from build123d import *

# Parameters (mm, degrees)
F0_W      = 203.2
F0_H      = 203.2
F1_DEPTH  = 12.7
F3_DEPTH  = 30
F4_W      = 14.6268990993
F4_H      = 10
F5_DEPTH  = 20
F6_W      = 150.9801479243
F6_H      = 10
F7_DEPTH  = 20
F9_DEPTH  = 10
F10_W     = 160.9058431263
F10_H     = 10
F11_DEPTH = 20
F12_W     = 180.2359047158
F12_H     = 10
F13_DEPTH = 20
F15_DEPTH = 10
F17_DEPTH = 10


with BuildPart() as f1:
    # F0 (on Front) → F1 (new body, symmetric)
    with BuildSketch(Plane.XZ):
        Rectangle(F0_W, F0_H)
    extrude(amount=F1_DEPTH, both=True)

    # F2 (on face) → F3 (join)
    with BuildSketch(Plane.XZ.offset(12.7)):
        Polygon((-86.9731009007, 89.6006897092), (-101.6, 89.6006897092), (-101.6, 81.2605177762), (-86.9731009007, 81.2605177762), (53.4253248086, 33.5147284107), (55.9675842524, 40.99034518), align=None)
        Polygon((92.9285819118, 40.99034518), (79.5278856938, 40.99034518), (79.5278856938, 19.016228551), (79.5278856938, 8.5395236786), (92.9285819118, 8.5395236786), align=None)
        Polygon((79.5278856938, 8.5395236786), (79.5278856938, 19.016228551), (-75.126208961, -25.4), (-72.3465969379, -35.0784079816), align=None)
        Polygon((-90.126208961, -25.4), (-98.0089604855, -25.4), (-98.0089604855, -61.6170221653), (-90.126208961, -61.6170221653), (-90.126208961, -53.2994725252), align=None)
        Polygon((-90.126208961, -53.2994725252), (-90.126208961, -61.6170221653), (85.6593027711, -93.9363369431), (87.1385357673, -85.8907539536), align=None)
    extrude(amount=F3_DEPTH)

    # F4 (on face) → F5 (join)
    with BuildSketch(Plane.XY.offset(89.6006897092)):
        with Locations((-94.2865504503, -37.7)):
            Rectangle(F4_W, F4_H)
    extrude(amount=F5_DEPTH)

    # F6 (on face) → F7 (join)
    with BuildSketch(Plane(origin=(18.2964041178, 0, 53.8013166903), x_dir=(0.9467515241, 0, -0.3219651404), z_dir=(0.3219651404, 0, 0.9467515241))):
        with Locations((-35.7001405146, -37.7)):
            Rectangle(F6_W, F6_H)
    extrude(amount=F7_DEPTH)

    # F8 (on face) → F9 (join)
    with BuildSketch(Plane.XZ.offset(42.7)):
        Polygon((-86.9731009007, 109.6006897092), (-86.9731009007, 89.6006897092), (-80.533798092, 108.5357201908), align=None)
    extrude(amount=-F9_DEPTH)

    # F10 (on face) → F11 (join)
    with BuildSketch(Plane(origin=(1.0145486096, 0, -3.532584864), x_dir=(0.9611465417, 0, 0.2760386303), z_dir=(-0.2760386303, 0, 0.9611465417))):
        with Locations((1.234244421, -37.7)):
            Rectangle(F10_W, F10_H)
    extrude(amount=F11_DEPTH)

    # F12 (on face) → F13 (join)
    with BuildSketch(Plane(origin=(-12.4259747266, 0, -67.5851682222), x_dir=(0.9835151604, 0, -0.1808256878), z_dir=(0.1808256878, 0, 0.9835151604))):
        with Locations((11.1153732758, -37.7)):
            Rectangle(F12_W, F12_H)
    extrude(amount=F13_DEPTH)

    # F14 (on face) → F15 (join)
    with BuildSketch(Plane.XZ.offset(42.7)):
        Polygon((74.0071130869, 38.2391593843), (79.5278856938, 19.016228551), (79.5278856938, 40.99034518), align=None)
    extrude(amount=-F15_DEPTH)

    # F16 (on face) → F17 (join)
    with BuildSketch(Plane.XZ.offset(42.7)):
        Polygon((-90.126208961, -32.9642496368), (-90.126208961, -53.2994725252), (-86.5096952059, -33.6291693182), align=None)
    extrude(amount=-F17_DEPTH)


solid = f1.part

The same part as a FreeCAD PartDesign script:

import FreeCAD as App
import Part
import Sketcher

V = App.Vector

doc = App.newDocument("Part")
body = doc.addObject("PartDesign::Body", "Body")

# Sketch on XZ plane
sketch1 = body.newObject("Sketcher::SketchObject", "Sketch")
sketch1.AttachmentSupport = (doc.getObject("XZ_Plane"), [""])
sketch1.MapMode = "FlatFace"
sketch1.addGeometry([
    Part.LineSegment(V(-102, 102, 0), V(-102, -102, 0)),
    Part.LineSegment(V(-102, -102, 0), V(102, -102, 0)),
    Part.LineSegment(V(102, -102, 0), V(102, 102, 0)),
    Part.LineSegment(V(102, 102, 0), V(-102, 102, 0)),
], False)
sketch1.addConstraint([
    Sketcher.Constraint("Coincident", 0, 2, 1, 1),
    Sketcher.Constraint("Coincident", 1, 2, 2, 1),
    Sketcher.Constraint("Coincident", 2, 2, 3, 1),
    Sketcher.Constraint("Coincident", 3, 2, 0, 1),
    Sketcher.Constraint("Vertical", 0),
    Sketcher.Constraint("Horizontal", 1),
    Sketcher.Constraint("Vertical", 2),
    Sketcher.Constraint("Horizontal", 3),
    Sketcher.Constraint("Symmetric", 0, 2, 2, 2, -1, 1),
    Sketcher.Constraint("Equal", 3, 0),
    Sketcher.Constraint("DistanceX", 1, 1, 1, 2, 203.2),
])
pad1 = body.newObject("PartDesign::Pad", "Pad")
pad1.Profile = sketch1
pad1.Length = 25.4
pad1.Midplane = True

# Sketch on XZ plane
sketch2 = body.newObject("Sketcher::SketchObject", "Sketch001")
sketch2.AttachmentSupport = (doc.getObject("XZ_Plane"), [""])
sketch2.MapMode = "FlatFace"
sketch2.AttachmentOffset = App.Placement(V(0, 0, 12.7), App.Rotation())
sketch2.addGeometry([
    Part.LineSegment(V(-86.973101, 89.60069, 0), V(-101.6, 89.60069, 0)),  # 0
    Part.LineSegment(V(-101.6, 89.60069, 0), V(-101.6, 81.260518, 0)),  # 1
    Part.LineSegment(V(-101.6, 81.260518, 0), V(-86.973101, 81.260518, 0)),  # 2
    Part.LineSegment(V(-86.973101, 81.260518, 0), V(53.425325, 33.514728, 0)),  # 3
    Part.LineSegment(V(53.425325, 33.514728, 0), V(55.967584, 40.990345, 0)),  # 4
    Part.LineSegment(V(55.967584, 40.990345, 0), V(-86.973101, 89.60069, 0)),  # 5
    Part.LineSegment(V(92.928582, 40.990345, 0), V(79.527886, 40.990345, 0)),  # 6
    Part.LineSegment(V(79.527886, 40.990345, 0), V(79.527886, 19.016229, 0)),  # 7
    Part.LineSegment(V(79.527886, 19.016229, 0), V(-75.126209, -25.4, 0)),  # 8
    Part.LineSegment(V(-75.126209, -25.4, 0), V(-72.346597, -35.078408, 0)),  # 9
    Part.LineSegment(V(-72.346597, -35.078408, 0), V(79.527886, 8.539524, 0)),  # 10
    Part.LineSegment(V(79.527886, 8.539524, 0), V(92.928582, 8.539524, 0)),  # 11
    Part.LineSegment(V(92.928582, 8.539524, 0), V(92.928582, 40.990345, 0)),  # 12
    Part.LineSegment(V(-90.126209, -25.4, 0), V(-98.00896, -25.4, 0)),  # 13
    Part.LineSegment(V(-98.00896, -25.4, 0), V(-98.00896, -61.617022, 0)),  # 14
    Part.LineSegment(V(-98.00896, -61.617022, 0), V(-90.126209, -61.617022, 0)),  # 15
    Part.LineSegment(V(-90.126209, -61.617022, 0), V(85.659303, -93.936337, 0)),  # 16
    Part.LineSegment(V(85.659303, -93.936337, 0), V(87.138536, -85.890754, 0)),  # 17
    Part.LineSegment(V(87.138536, -85.890754, 0), V(-90.126209, -53.299473, 0)),  # 18
    Part.LineSegment(V(-90.126209, -53.299473, 0), V(-90.126209, -25.4, 0)),  # 19
], False)
sketch2.addConstraint([
    Sketcher.Constraint("Coincident", 0, 2, 1, 1),
    Sketcher.Constraint("Coincident", 1, 2, 2, 1),
    Sketcher.Constraint("Coincident", 2, 2, 3, 1),
    Sketcher.Constraint("Coincident", 3, 2, 4, 1),
    Sketcher.Constraint("Coincident", 4, 2, 5, 1),
    Sketcher.Constraint("Coincident", 5, 2, 0, 1),
    Sketcher.Constraint("Coincident", 6, 2, 7, 1),
    Sketcher.Constraint("Coincident", 7, 2, 8, 1),
    Sketcher.Constraint("Coincident", 8, 2, 9, 1),
    Sketcher.Constraint("Coincident", 9, 2, 10, 1),
    Sketcher.Constraint("Coincident", 10, 2, 11, 1),
    Sketcher.Constraint("Coincident", 11, 2, 12, 1),
    Sketcher.Constraint("Coincident", 12, 2, 6, 1),
    Sketcher.Constraint("Coincident", 13, 2, 14, 1),
    Sketcher.Constraint("Coincident", 14, 2, 15, 1),
    Sketcher.Constraint("Coincident", 15, 2, 16, 1),
    Sketcher.Constraint("Coincident", 16, 2, 17, 1),
    Sketcher.Constraint("Coincident", 17, 2, 18, 1),
    Sketcher.Constraint("Coincident", 18, 2, 19, 1),
    Sketcher.Constraint("Coincident", 19, 2, 13, 1),
    Sketcher.Constraint("Horizontal", 0),
    Sketcher.Constraint("Vertical", 1),
    Sketcher.Constraint("Horizontal", 2),
    Sketcher.Constraint("Horizontal", 6),
    Sketcher.Constraint("Vertical", 7),
    Sketcher.Constraint("Horizontal", 11),
    Sketcher.Constraint("Vertical", 12),
    Sketcher.Constraint("Horizontal", 13),
    Sketcher.Constraint("Vertical", 14),
    Sketcher.Constraint("Horizontal", 15),
    Sketcher.Constraint("Vertical", 19),
    Sketcher.Constraint("DistanceX", 15, 2, 8, 2, 15.0),
    Sketcher.Constraint("DistanceX", 18, 2, 8, 2, 15.0),
    Sketcher.Constraint("DistanceX", 0, 2, -1, 1, 101.6),
    Sketcher.Constraint("DistanceY", 8, 2, -1, 1, 25.4),
    Sketcher.Constraint("DistanceY", 13, 2, -1, 1, 25.4),
    Sketcher.Constraint("DistanceX", 0, 2, 0, 1, 14.626899),
    Sketcher.Constraint("DistanceX", 2, 1, 2, 2, 14.626899),
    Sketcher.Constraint("DistanceX", 13, 2, 13, 1, 7.882752),
    Sketcher.Constraint("DistanceY", 1, 2, 1, 1, 8.340172),
    Sketcher.Constraint("DistanceY", 12, 1, 12, 2, 32.450822),
    Sketcher.Constraint("DistanceX", 4, 2, 6, 2, 23.560301),
    Sketcher.Constraint("DistanceY", 7, 2, 3, 2, 14.4985),
    Sketcher.Constraint("DistanceX", 4, 2, 10, 2, 23.560301),
    Sketcher.Constraint("Distance", 4, 7.89607),
    Sketcher.Constraint("Distance", 9, 10.069649),
    Sketcher.Constraint("Distance", 16, 178.731878),
    Sketcher.Constraint("DistanceX", 6, 2, 6, 1, 13.400696),
    Sketcher.Constraint("DistanceY", 7, 2, 7, 1, 21.974117),
    Sketcher.Constraint("DistanceY", 14, 2, 14, 1, 36.217022),
    Sketcher.Constraint("DistanceY", 19, 1, 19, 2, 27.899473),
    Sketcher.Constraint("DistanceY", -1, 1, 0, 2, 89.60069),
    Sketcher.Constraint("DistanceY", -1, 1, 3, 2, 33.514728),
    Sketcher.Constraint("DistanceX", 8, 2, -1, 1, 75.126209),
    Sketcher.Constraint("DistanceX", -1, 1, 11, 2, 92.928582),
    Sketcher.Constraint("DistanceX", 3, 2, 4, 2, 2.542259),
    Sketcher.Constraint("DistanceY", 9, 2, 10, 2, 43.617932),
    Sketcher.Constraint("DistanceY", 16, 2, 10, 2, 102.475861),
    Sketcher.Constraint("DistanceX", 10, 2, 17, 2, 7.61065),
    Sketcher.Constraint("Distance", 17, 8.180436),
])
pad2 = body.newObject("PartDesign::Pad", "Pad001")
pad2.Profile = sketch2
pad2.Length = 30

# Sketch on XY plane
sketch3 = body.newObject("Sketcher::SketchObject", "Sketch002")
sketch3.AttachmentSupport = (doc.getObject("XY_Plane"), [""])
sketch3.MapMode = "FlatFace"
sketch3.AttachmentOffset = App.Placement(V(0, 0, 89.60069), App.Rotation())
sketch3.addGeometry([
    Part.LineSegment(V(-102, -33, 0), V(-102, -43, 0)),
    Part.LineSegment(V(-102, -43, 0), V(-87, -43, 0)),
    Part.LineSegment(V(-87, -43, 0), V(-87, -33, 0)),
    Part.LineSegment(V(-87, -33, 0), V(-102, -33, 0)),
], False)
sketch3.addConstraint([
    Sketcher.Constraint("Coincident", 0, 2, 1, 1),
    Sketcher.Constraint("Coincident", 1, 2, 2, 1),
    Sketcher.Constraint("Coincident", 2, 2, 3, 1),
    Sketcher.Constraint("Coincident", 3, 2, 0, 1),
    Sketcher.Constraint("Vertical", 0),
    Sketcher.Constraint("Horizontal", 1),
    Sketcher.Constraint("Vertical", 2),
    Sketcher.Constraint("Horizontal", 3),
    Sketcher.Constraint("DistanceY", 0, 2, 0, 1, 10.0),
    Sketcher.Constraint("DistanceX", 0, 2, -1, 1, 101.6),
    Sketcher.Constraint("DistanceY", 0, 2, -1, 1, 42.7),
    Sketcher.Constraint("DistanceX", 1, 1, 1, 2, 14.626899),
])
pad3 = body.newObject("PartDesign::Pad", "Pad002")
pad3.Profile = sketch3
pad3.Length = 20

# Sketch on an angled plane
sketch4 = body.newObject("Sketcher::SketchObject", "Sketch003")
sketch4.Placement = App.Placement(V(18.296404, 0, 53.801317), App.Rotation(V(0.946751524, 0, -0.32196514), V(0, 1, 0), V(0.32196514, 0, 0.946751524), "ZXY"))
sketch4.addGeometry([
    Part.LineSegment(V(-111, -33, 0), V(-111, -43, 0)),
    Part.LineSegment(V(-111, -43, 0), V(40, -43, 0)),
    Part.LineSegment(V(40, -43, 0), V(40, -33, 0)),
    Part.LineSegment(V(40, -33, 0), V(-111, -33, 0)),
], False)
sketch4.addConstraint([
    Sketcher.Constraint("Coincident", 0, 2, 1, 1),
    Sketcher.Constraint("Coincident", 1, 2, 2, 1),
    Sketcher.Constraint("Coincident", 2, 2, 3, 1),
    Sketcher.Constraint("Coincident", 3, 2, 0, 1),
    Sketcher.Constraint("Vertical", 0),
    Sketcher.Constraint("Horizontal", 1),
    Sketcher.Constraint("Vertical", 2),
    Sketcher.Constraint("Horizontal", 3),
    Sketcher.Constraint("DistanceY", 0, 2, 0, 1, 10.0),
    Sketcher.Constraint("DistanceY", 0, 2, -1, 1, 42.7),
    Sketcher.Constraint("DistanceX", 1, 1, 1, 2, 150.980148),
    Sketcher.Constraint("DistanceX", 0, 2, -1, 1, 111.190214),
])
pad4 = body.newObject("PartDesign::Pad", "Pad003")
pad4.Profile = sketch4
pad4.Length = 20

# Sketch on XZ plane
sketch5 = body.newObject("Sketcher::SketchObject", "Sketch004")
sketch5.AttachmentSupport = (doc.getObject("XZ_Plane"), [""])
sketch5.MapMode = "FlatFace"
sketch5.AttachmentOffset = App.Placement(V(0, 0, 42.7), App.Rotation())
sketch5.addGeometry([
    Part.LineSegment(V(-87, 110, 0), V(-87, 90, 0)),
    Part.LineSegment(V(-87, 90, 0), V(-81, 109, 0)),
    Part.LineSegment(V(-81, 109, 0), V(-87, 110, 0)),
], False)
sketch5.addConstraint([
    Sketcher.Constraint("Coincident", 0, 2, 1, 1),
    Sketcher.Constraint("Coincident", 1, 2, 2, 1),
    Sketcher.Constraint("Coincident", 2, 2, 0, 1),
    Sketcher.Constraint("Vertical", 0),
    Sketcher.Constraint("DistanceY", 0, 2, 0, 1, 20.0),
    Sketcher.Constraint("Distance", 1, 20.0),
    Sketcher.Constraint("DistanceX", 0, 2, -1, 1, 86.973101),
    Sketcher.Constraint("DistanceX", 1, 2, -1, 1, 80.533798),
    Sketcher.Constraint("DistanceY", -1, 1, 0, 2, 89.60069),
])
pad5 = body.newObject("PartDesign::Pad", "Pad004")
pad5.Profile = sketch5
pad5.Length = 10
pad5.Reversed = True

# Sketch on an angled plane
sketch6 = body.newObject("Sketcher::SketchObject", "Sketch005")
sketch6.Placement = App.Placement(V(1.014549, 0, -3.532585), App.Rotation(V(0.961146542, 0, 0.27603863), V(0, 1, 0), V(-0.27603863, 0, 0.961146542), "ZXY"))
sketch6.addGeometry([
    Part.LineSegment(V(-79, -33, 0), V(-79, -43, 0)),
    Part.LineSegment(V(-79, -43, 0), V(82, -43, 0)),
    Part.LineSegment(V(82, -43, 0), V(82, -33, 0)),
    Part.LineSegment(V(82, -33, 0), V(-79, -33, 0)),
], False)
sketch6.addConstraint([
    Sketcher.Constraint("Coincident", 0, 2, 1, 1),
    Sketcher.Constraint("Coincident", 1, 2, 2, 1),
    Sketcher.Constraint("Coincident", 2, 2, 3, 1),
    Sketcher.Constraint("Coincident", 3, 2, 0, 1),
    Sketcher.Constraint("Vertical", 0),
    Sketcher.Constraint("Horizontal", 1),
    Sketcher.Constraint("Vertical", 2),
    Sketcher.Constraint("Horizontal", 3),
    Sketcher.Constraint("DistanceY", 0, 2, 0, 1, 10.0),
    Sketcher.Constraint("DistanceY", 0, 2, -1, 1, 42.7),
    Sketcher.Constraint("DistanceX", 1, 1, 1, 2, 160.905843),
    Sketcher.Constraint("DistanceX", 0, 2, -1, 1, 79.218677),
])
pad6 = body.newObject("PartDesign::Pad", "Pad005")
pad6.Profile = sketch6
pad6.Length = 20

# Sketch on an angled plane
sketch7 = body.newObject("Sketcher::SketchObject", "Sketch006")
sketch7.Placement = App.Placement(V(-12.425975, 0, -67.585168), App.Rotation(V(0.98351516, 0, -0.180825688), V(0, 0.999999999, 0), V(0.180825688, 0, 0.98351516), "ZXY"))
sketch7.addGeometry([
    Part.LineSegment(V(-79, -33, 0), V(-79, -43, 0)),
    Part.LineSegment(V(-79, -43, 0), V(101, -43, 0)),
    Part.LineSegment(V(101, -43, 0), V(101, -33, 0)),
    Part.LineSegment(V(101, -33, 0), V(-79, -33, 0)),
], False)
sketch7.addConstraint([
    Sketcher.Constraint("Coincident", 0, 2, 1, 1),
    Sketcher.Constraint("Coincident", 1, 2, 2, 1),
    Sketcher.Constraint("Coincident", 2, 2, 3, 1),
    Sketcher.Constraint("Coincident", 3, 2, 0, 1),
    Sketcher.Constraint("Vertical", 0),
    Sketcher.Constraint("Horizontal", 1),
    Sketcher.Constraint("Vertical", 2),
    Sketcher.Constraint("Horizontal", 3),
    Sketcher.Constraint("DistanceY", 0, 2, 0, 1, 10.0),
    Sketcher.Constraint("DistanceY", 0, 2, -1, 1, 42.7),
    Sketcher.Constraint("DistanceX", 1, 1, 1, 2, 180.235905),
    Sketcher.Constraint("DistanceX", 0, 2, -1, 1, 79.002579),
])
pad7 = body.newObject("PartDesign::Pad", "Pad006")
pad7.Profile = sketch7
pad7.Length = 20

# Sketch on XZ plane
sketch8 = body.newObject("Sketcher::SketchObject", "Sketch007")
sketch8.AttachmentSupport = (doc.getObject("XZ_Plane"), [""])
sketch8.MapMode = "FlatFace"
sketch8.AttachmentOffset = App.Placement(V(0, 0, 42.7), App.Rotation())
sketch8.addGeometry([
    Part.LineSegment(V(74, 38, 0), V(80, 19, 0)),
    Part.LineSegment(V(80, 19, 0), V(80, 41, 0)),
    Part.LineSegment(V(80, 41, 0), V(74, 38, 0)),
], False)
sketch8.addConstraint([
    Sketcher.Constraint("Coincident", 0, 2, 1, 1),
    Sketcher.Constraint("Coincident", 1, 2, 2, 1),
    Sketcher.Constraint("Coincident", 2, 2, 0, 1),
    Sketcher.Constraint("Vertical", 1),
    Sketcher.Constraint("Distance", 0, 20.0),
    Sketcher.Constraint("DistanceY", 1, 1, 1, 2, 21.974117),
    Sketcher.Constraint("DistanceY", -1, 1, 0, 2, 19.016229),
    Sketcher.Constraint("DistanceY", -1, 1, 2, 2, 38.239159),
    Sketcher.Constraint("DistanceX", -1, 1, 0, 2, 79.527886),
])
pad8 = body.newObject("PartDesign::Pad", "Pad007")
pad8.Profile = sketch8
pad8.Length = 10
pad8.Reversed = True

# Sketch on XZ plane
sketch9 = body.newObject("Sketcher::SketchObject", "Sketch008")
sketch9.AttachmentSupport = (doc.getObject("XZ_Plane"), [""])
sketch9.MapMode = "FlatFace"
sketch9.AttachmentOffset = App.Placement(V(0, 0, 42.7), App.Rotation())
sketch9.addGeometry([
    Part.LineSegment(V(-90.1, -33, 0), V(-90.1, -53.3, 0)),
    Part.LineSegment(V(-90.1, -53.3, 0), V(-86.5, -33.6, 0)),
    Part.LineSegment(V(-86.5, -33.6, 0), V(-90.1, -33, 0)),
], False)
sketch9.addConstraint([
    Sketcher.Constraint("Coincident", 0, 2, 1, 1),
    Sketcher.Constraint("Coincident", 1, 2, 2, 1),
    Sketcher.Constraint("Coincident", 2, 2, 0, 1),
    Sketcher.Constraint("Vertical", 0),
    Sketcher.Constraint("Perpendicular", 1, 2),
    Sketcher.Constraint("Distance", 1, 20.0),
    Sketcher.Constraint("Distance", 2, 3.677131),
    Sketcher.Constraint("DistanceX", 0, 2, -1, 1, 90.126209),
    Sketcher.Constraint("DistanceY", 1, 2, -1, 1, 33.629169),
])
pad9 = body.newObject("PartDesign::Pad", "Pad008")
pad9.Profile = sketch9
pad9.Length = 10
pad9.Reversed = True

doc.recompute()
